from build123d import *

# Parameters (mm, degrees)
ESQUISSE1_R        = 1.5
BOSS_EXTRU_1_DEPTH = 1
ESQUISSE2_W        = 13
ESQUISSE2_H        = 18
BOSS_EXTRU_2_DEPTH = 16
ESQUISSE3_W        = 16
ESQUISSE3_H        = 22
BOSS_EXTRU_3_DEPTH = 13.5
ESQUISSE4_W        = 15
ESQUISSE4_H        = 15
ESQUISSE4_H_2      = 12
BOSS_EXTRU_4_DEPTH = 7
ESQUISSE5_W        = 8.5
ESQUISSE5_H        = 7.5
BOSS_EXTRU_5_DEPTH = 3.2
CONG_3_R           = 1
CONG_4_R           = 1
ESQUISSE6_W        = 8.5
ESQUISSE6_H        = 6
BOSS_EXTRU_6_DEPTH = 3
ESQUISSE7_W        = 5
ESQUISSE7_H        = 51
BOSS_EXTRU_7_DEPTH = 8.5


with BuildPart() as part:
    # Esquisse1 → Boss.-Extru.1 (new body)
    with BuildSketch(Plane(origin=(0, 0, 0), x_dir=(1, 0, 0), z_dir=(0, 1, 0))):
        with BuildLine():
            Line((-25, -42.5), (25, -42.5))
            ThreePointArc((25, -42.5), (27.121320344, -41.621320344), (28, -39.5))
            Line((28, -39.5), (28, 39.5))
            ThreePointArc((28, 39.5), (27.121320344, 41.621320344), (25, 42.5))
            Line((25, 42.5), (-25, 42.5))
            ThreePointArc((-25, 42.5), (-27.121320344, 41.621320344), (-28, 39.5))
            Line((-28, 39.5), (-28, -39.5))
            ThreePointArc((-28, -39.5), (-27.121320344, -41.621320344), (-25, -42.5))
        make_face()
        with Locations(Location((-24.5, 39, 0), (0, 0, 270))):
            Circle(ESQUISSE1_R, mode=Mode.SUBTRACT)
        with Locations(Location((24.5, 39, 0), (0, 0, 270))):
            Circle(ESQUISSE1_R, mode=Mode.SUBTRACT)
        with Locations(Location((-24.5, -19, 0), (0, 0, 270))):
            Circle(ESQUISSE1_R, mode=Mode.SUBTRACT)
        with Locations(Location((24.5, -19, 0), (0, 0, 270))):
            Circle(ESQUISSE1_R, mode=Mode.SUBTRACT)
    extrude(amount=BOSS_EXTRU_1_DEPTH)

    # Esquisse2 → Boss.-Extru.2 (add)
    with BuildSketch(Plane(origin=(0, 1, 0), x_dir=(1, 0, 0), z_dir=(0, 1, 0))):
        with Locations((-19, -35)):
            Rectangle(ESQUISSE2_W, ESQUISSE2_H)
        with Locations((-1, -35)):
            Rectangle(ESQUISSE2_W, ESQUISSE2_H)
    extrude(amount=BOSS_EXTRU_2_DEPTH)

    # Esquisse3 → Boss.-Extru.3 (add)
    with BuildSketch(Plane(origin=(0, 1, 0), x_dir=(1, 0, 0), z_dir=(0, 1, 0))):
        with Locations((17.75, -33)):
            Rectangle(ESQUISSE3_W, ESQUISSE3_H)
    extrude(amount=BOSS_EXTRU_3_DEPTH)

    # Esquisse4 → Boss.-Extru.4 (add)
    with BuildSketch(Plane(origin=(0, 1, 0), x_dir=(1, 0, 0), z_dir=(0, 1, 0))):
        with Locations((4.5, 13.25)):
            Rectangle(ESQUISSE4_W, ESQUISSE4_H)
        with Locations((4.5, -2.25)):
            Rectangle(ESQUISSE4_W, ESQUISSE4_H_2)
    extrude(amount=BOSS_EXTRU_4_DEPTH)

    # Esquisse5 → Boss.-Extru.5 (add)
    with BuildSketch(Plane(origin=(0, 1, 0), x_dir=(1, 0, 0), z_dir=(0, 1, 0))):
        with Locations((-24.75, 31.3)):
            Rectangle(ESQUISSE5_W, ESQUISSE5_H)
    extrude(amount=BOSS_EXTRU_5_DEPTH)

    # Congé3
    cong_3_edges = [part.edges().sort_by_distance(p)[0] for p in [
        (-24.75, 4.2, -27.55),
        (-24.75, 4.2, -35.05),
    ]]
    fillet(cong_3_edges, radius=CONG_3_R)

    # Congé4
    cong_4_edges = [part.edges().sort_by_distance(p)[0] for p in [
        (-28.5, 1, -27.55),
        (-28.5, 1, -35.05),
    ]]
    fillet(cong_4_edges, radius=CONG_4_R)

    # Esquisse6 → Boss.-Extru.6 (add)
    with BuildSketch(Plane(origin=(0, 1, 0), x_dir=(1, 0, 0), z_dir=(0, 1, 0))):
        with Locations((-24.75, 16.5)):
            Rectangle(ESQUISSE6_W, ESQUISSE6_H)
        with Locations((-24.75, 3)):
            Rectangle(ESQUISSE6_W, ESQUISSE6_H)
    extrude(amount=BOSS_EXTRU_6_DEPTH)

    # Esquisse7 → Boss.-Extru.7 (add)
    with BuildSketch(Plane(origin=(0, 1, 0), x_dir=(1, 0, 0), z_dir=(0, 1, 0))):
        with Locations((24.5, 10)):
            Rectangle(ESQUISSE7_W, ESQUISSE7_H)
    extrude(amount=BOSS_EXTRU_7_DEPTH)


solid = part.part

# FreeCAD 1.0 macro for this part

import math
import FreeCAD as App
import Part
import Sketcher

V = App.Vector
Q = App.Units.Quantity


def edges_at(feature, points):
    """Names of the edges that pass closest to the given points."""
    edges = feature.Shape.Edges
    near = lambda p: min(range(len(edges)), key=lambda i: edges[i].distToShape(Part.Vertex(*p))[0])
    return sorted({f"Edge{near(p) + 1}" for p in points})

doc = App.newDocument("Part")
body = doc.addObject("PartDesign::Body", "Body")

# Sketch on XZ plane
sketch1 = body.newObject("Sketcher::SketchObject", "Sketch")
sketch1.AttachmentSupport = (doc.getObject("XZ_Plane"), [""])
sketch1.MapMode = "FlatFace"
sketch1.addGeometry(Part.LineSegment(V(-25, 42.5, 0), V(25, 42.5, 0)), False)
sketch1.addGeometry(Part.ArcOfCircle(Part.Circle(V(25, 39.5, 0), V(0, 0, 1), 3), math.radians(0), math.radians(90)), False)
sketch1.addGeometry(Part.LineSegment(V(28, 39.5, 0), V(28, -39.5, 0)), False)
sketch1.addGeometry(Part.ArcOfCircle(Part.Circle(V(25, -39.5, 0), V(0, 0, 1), 3), math.radians(-90), math.radians(0)), False)
sketch1.addGeometry(Part.LineSegment(V(25, -42.5, 0), V(-25, -42.5, 0)), False)
sketch1.addGeometry(Part.ArcOfCircle(Part.Circle(V(-25, -39.5, 0), V(0, 0, 1), 3), math.radians(180), math.radians(270)), False)
sketch1.addGeometry(Part.LineSegment(V(-28, -39.5, 0), V(-28, 39.5, 0)), False)
sketch1.addGeometry(Part.ArcOfCircle(Part.Circle(V(-25, 39.5, 0), V(0, 0, 1), 3), math.radians(90), math.radians(180)), False)
sketch1.addGeometry(Part.Circle(V(-24.5, 19, 0), V(0, 0, 1), 1.5), False)
sketch1.addGeometry(Part.Circle(V(24.5, 19, 0), V(0, 0, 1), 1.5), False)
sketch1.addGeometry(Part.Circle(V(-24.5, -39, 0), V(0, 0, 1), 1.5), False)
sketch1.addGeometry(Part.Circle(V(24.5, -39, 0), V(0, 0, 1), 1.5), False)
sketch1.addConstraint(Sketcher.Constraint("Tangent", 0, 2, 1, 2))
sketch1.addConstraint(Sketcher.Constraint("Tangent", 1, 1, 2, 1))
sketch1.addConstraint(Sketcher.Constraint("Tangent", 2, 2, 3, 2))
sketch1.addConstraint(Sketcher.Constraint("Tangent", 3, 1, 4, 1))
sketch1.addConstraint(Sketcher.Constraint("Tangent", 4, 2, 5, 2))
sketch1.addConstraint(Sketcher.Constraint("Tangent", 5, 1, 6, 1))
sketch1.addConstraint(Sketcher.Constraint("Tangent", 6, 2, 7, 2))
sketch1.addConstraint(Sketcher.Constraint("Tangent", 7, 1, 0, 1))
sketch1.addConstraint(Sketcher.Constraint("Horizontal", 0))
sketch1.addConstraint(Sketcher.Constraint("Vertical", 2))
sketch1.addConstraint(Sketcher.Constraint("Horizontal", 4))
sketch1.addConstraint(Sketcher.Constraint("Vertical", 6))
sketch1.addConstraint(Sketcher.Constraint("Equal", 1, 3))
sketch1.addConstraint(Sketcher.Constraint("Equal", 3, 5))
sketch1.addConstraint(Sketcher.Constraint("Equal", 5, 7))
sketch1.addConstraint(Sketcher.Constraint("Equal", 8, 9))
sketch1.addConstraint(Sketcher.Constraint("Equal", 9, 10))
sketch1.addConstraint(Sketcher.Constraint("Equal", 10, 11))
sketch1.addConstraint(Sketcher.Constraint("Symmetric", 1, 3, 5, 3, -1, 1))
sketch1.addConstraint(Sketcher.Constraint("Symmetric", 8, 3, 9, 3, -2))
sketch1.addConstraint(Sketcher.Constraint("Symmetric", 10, 3, 11, 3, -2))
sketch1.addConstraint(Sketcher.Constraint("Vertical", 8, 3, 10, 3))
sketch1.addConstraint(Sketcher.Constraint("Diameter", 8, Q("3 mm")))
sketch1.addConstraint(Sketcher.Constraint("Radius", 1, Q("3 mm")))
sketch1.addConstraint(Sketcher.Constraint("DistanceX", 0, 1, 0, 2, Q("50 mm")))
sketch1.addConstraint(Sketcher.Constraint("DistanceY", 2, 2, 2, 1, Q("79 mm")))
sketch1.addConstraint(Sketcher.Constraint("DistanceY", -1, 1, 8, 3, Q("19 mm")))
sketch1.addConstraint(Sketcher.Constraint("DistanceY", 10, 3, -1, 1, Q("39 mm")))
sketch1.addConstraint(Sketcher.Constraint("DistanceX", 8, 3, 9, 3, Q("49 mm")))
pad1 = body.newObject("PartDesign::Pad", "Pad")
pad1.Profile = sketch1
pad1.Length = 1
pad1.Reversed = True

# Sketch on XZ plane
sketch2 = body.newObject("Sketcher::SketchObject", "Sketch001")
sketch2.AttachmentSupport = (doc.getObject("XZ_Plane"), [""])
sketch2.MapMode = "FlatFace"
sketch2.AttachmentOffset = App.Placement(V(0, 0, -1), App.Rotation())
sketch2.addGeometry(Part.LineSegment(V(-26, 26, 0), V(-26, 44, 0)), False)
sketch2.addGeometry(Part.LineSegment(V(-26, 44, 0), V(-12, 44, 0)), False)
sketch2.addGeometry(Part.LineSegment(V(-12, 44, 0), V(-12, 26, 0)), False)
sketch2.addGeometry(Part.LineSegment(V(-12, 26, 0), V(-26, 26, 0)), False)
sketch2.addGeometry(Part.LineSegment(V(-8, 26, 0), V(-8, 44, 0)), False)
sketch2.addGeometry(Part.LineSegment(V(-8, 44, 0), V(6, 44, 0)), False)
sketch2.addGeometry(Part.LineSegment(V(6, 44, 0), V(6, 26, 0)), False)
sketch2.addGeometry(Part.LineSegment(V(6, 26, 0), V(-8, 26, 0)), False)
sketch2.addConstraint(Sketcher.Constraint("Coincident", 0, 2, 1, 1))
sketch2.addConstraint(Sketcher.Constraint("Coincident", 1, 2, 2, 1))
sketch2.addConstraint(Sketcher.Constraint("Coincident", 2, 2, 3, 1))
sketch2.addConstraint(Sketcher.Constraint("Coincident", 3, 2, 0, 1))
sketch2.addConstraint(Sketcher.Constraint("Coincident", 4, 2, 5, 1))
sketch2.addConstraint(Sketcher.Constraint("Coincident", 5, 2, 6, 1))
sketch2.addConstraint(Sketcher.Constraint("Coincident", 6, 2, 7, 1))
sketch2.addConstraint(Sketcher.Constraint("Coincident", 7, 2, 4, 1))
sketch2.addConstraint(Sketcher.Constraint("Vertical", 0))
sketch2.addConstraint(Sketcher.Constraint("Horizontal", 1))
sketch2.addConstraint(Sketcher.Constraint("Vertical", 2))
sketch2.addConstraint(Sketcher.Constraint("Horizontal", 3))
sketch2.addConstraint(Sketcher.Constraint("Vertical", 4))
sketch2.addConstraint(Sketcher.Constraint("Horizontal", 5))
sketch2.addConstraint(Sketcher.Constraint("Vertical", 6))
sketch2.addConstraint(Sketcher.Constraint("Horizontal", 7))
sketch2.addConstraint(Sketcher.Constraint("Horizontal", 1, 2, 4, 2))
sketch2.addConstraint(Sketcher.Constraint("Horizontal", 3, 2, 6, 2))
sketch2.addConstraint(Sketcher.Constraint("Equal", 3, 5))
sketch2.addConstraint(Sketcher.Constraint("DistanceX", 1, 1, 1, 2, Q("13 mm")))
sketch2.addConstraint(Sketcher.Constraint("DistanceY", 0, 1, 0, 2, Q("18 mm")))
sketch2.addConstraint(Sketcher.Constraint("DistanceY", -1, 1, 0, 2, Q("44 mm")))
sketch2.addConstraint(Sketcher.Constraint("DistanceX", 1, 2, 4, 2, Q("5 mm")))
sketch2.addConstraint(Sketcher.Constraint("DistanceX", 0, 2, -1, 1, Q("25.5 mm")))
pad2 = body.newObject("PartDesign::Pad", "Pad001")
pad2.Profile = sketch2
pad2.Length = 16
pad2.Reversed = True

# Sketch on XZ plane
sketch3 = body.newObject("Sketcher::SketchObject", "Sketch002")
sketch3.AttachmentSupport = (doc.getObject("XZ_Plane"), [""])
sketch3.MapMode = "FlatFace"
sketch3.AttachmentOffset = App.Placement(V(0, 0, -1), App.Rotation())
sketch3.addGeometry(Part.LineSegment(V(10, 22, 0), V(10, 44, 0)), False)
sketch3.addGeometry(Part.LineSegment(V(10, 44, 0), V(26, 44, 0)), False)
sketch3.addGeometry(Part.LineSegment(V(26, 44, 0), V(26, 22, 0)), False)
sketch3.addGeometry(Part.LineSegment(V(26, 22, 0), V(10, 22, 0)), False)
sketch3.addConstraint(Sketcher.Constraint("Coincident", 0, 2, 1, 1))
sketch3.addConstraint(Sketcher.Constraint("Coincident", 1, 2, 2, 1))
sketch3.addConstraint(Sketcher.Constraint("Coincident", 2, 2, 3, 1))
sketch3.addConstraint(Sketcher.Constraint("Coincident", 3, 2, 0, 1))
sketch3.addConstraint(Sketcher.Constraint("Vertical", 0))
sketch3.addConstraint(Sketcher.Constraint("Horizontal", 1))
sketch3.addConstraint(Sketcher.Constraint("Vertical", 2))
sketch3.addConstraint(Sketcher.Constraint("Horizontal", 3))
sketch3.addConstraint(Sketcher.Constraint("DistanceX", 1, 1, 1, 2, Q("16 mm")))
sketch3.addConstraint(Sketcher.Constraint("DistanceY", 0, 1, 0, 2, Q("22 mm")))
sketch3.addConstraint(Sketcher.Constraint("DistanceY", -1, 1, 0, 2, Q("44 mm")))
sketch3.addConstraint(Sketcher.Constraint("DistanceX", -1, 1, 0, 2, Q("9.75 mm")))
pad3 = body.newObject("PartDesign::Pad", "Pad002")
pad3.Profile = sketch3
pad3.Length = 13.5
pad3.Reversed = True

# Sketch on XZ plane
sketch4 = body.newObject("Sketcher::SketchObject", "Sketch003")
sketch4.AttachmentSupport = (doc.getObject("XZ_Plane"), [""])
sketch4.MapMode = "FlatFace"
sketch4.AttachmentOffset = App.Placement(V(0, 0, -1), App.Rotation())
sketch4.addGeometry(Part.LineSegment(V(-3, -21, 0), V(-3, -6, 0)), False)
sketch4.addGeometry(Part.LineSegment(V(-3, -6, 0), V(12, -6, 0)), False)
sketch4.addGeometry(Part.LineSegment(V(12, -6, 0), V(12, -21, 0)), False)
sketch4.addGeometry(Part.LineSegment(V(12, -21, 0), V(-3, -21, 0)), False)
sketch4.addGeometry(Part.LineSegment(V(-3, -4, 0), V(-3, 8, 0)), False)
sketch4.addGeometry(Part.LineSegment(V(-3, 8, 0), V(12, 8, 0)), False)
sketch4.addGeometry(Part.LineSegment(V(12, 8, 0), V(12, -4, 0)), False)
sketch4.addGeometry(Part.LineSegment(V(12, -4, 0), V(-3, -4, 0)), False)
sketch4.addConstraint(Sketcher.Constraint("Coincident", 0, 2, 1, 1))
sketch4.addConstraint(Sketcher.Constraint("Coincident", 1, 2, 2, 1))
sketch4.addConstraint(Sketcher.Constraint("Coincident", 2, 2, 3, 1))
sketch4.addConstraint(Sketcher.Constraint("Coincident", 3, 2, 0, 1))
sketch4.addConstraint(Sketcher.Constraint("Coincident", 4, 2, 5, 1))
sketch4.addConstraint(Sketcher.Constraint("Coincident", 5, 2, 6, 1))
sketch4.addConstraint(Sketcher.Constraint("Coincident", 6, 2, 7, 1))
sketch4.addConstraint(Sketcher.Constraint("Coincident", 7, 2, 4, 1))
sketch4.addConstraint(Sketcher.Constraint("Vertical", 0))
sketch4.addConstraint(Sketcher.Constraint("Horizontal", 1))
sketch4.addConstraint(Sketcher.Constraint("Vertical", 2))
sketch4.addConstraint(Sketcher.Constraint("Horizontal", 3))
sketch4.addConstraint(Sketcher.Constraint("Vertical", 4))
sketch4.addConstraint(Sketcher.Constraint("Horizontal", 5))
sketch4.addConstraint(Sketcher.Constraint("Vertical", 6))
sketch4.addConstraint(Sketcher.Constraint("Horizontal", 7))
sketch4.addConstraint(Sketcher.Constraint("Vertical", 3, 2, 4, 2))
sketch4.addConstraint(Sketcher.Constraint("Vertical", 2, 2, 5, 2))
sketch4.addConstraint(Sketcher.Constraint("Equal", 7, 0))
sketch4.addConstraint(Sketcher.Constraint("DistanceX", 1, 1, 1, 2, Q("15 mm")))
sketch4.addConstraint(Sketcher.Constraint("DistanceY", 4, 1, 4, 2, Q("12 mm")))
sketch4.addConstraint(Sketcher.Constraint("DistanceX", 0, 2, -1, 1, Q("3 mm")))
sketch4.addConstraint(Sketcher.Constraint("DistanceY", 0, 2, 4, 2, Q("14 mm")))
sketch4.addConstraint(Sketcher.Constraint("DistanceY", 0, 2, -1, 1, Q("5.75 mm")))
pad4 = body.newObject("PartDesign::Pad", "Pad003")
pad4.Profile = sketch4
pad4.Length = 7
pad4.Reversed = True

# Sketch on XZ plane
sketch5 = body.newObject("Sketcher::SketchObject", "Sketch004")
sketch5.AttachmentSupport = (doc.getObject("XZ_Plane"), [""])
sketch5.MapMode = "FlatFace"
sketch5.AttachmentOffset = App.Placement(V(0, 0, -1), App.Rotation())
sketch5.addGeometry(Part.LineSegment(V(-29, -35, 0), V(-29, -28, 0)), False)
sketch5.addGeometry(Part.LineSegment(V(-29, -28, 0), V(-20, -28, 0)), False)
sketch5.addGeometry(Part.LineSegment(V(-20, -28, 0), V(-20, -35, 0)), False)
sketch5.addGeometry(Part.LineSegment(V(-20, -35, 0), V(-29, -35, 0)), False)
sketch5.addConstraint(Sketcher.Constraint("Coincident", 0, 2, 1, 1))
sketch5.addConstraint(Sketcher.Constraint("Coincident", 1, 2, 2, 1))
sketch5.addConstraint(Sketcher.Constraint("Coincident", 2, 2, 3, 1))
sketch5.addConstraint(Sketcher.Constraint("Coincident", 3, 2, 0, 1))
sketch5.addConstraint(Sketcher.Constraint("Vertical", 0))
sketch5.addConstraint(Sketcher.Constraint("Horizontal", 1))
sketch5.addConstraint(Sketcher.Constraint("Vertical", 2))
sketch5.addConstraint(Sketcher.Constraint("Horizontal", 3))
sketch5.addConstraint(Sketcher.Constraint("DistanceX", 1, 1, 1, 2, Q("8.5 mm")))
sketch5.addConstraint(Sketcher.Constraint("DistanceY", 0, 1, 0, 2, Q("7.5 mm")))
sketch5.addConstraint(Sketcher.Constraint("DistanceX", 0, 2, -1, 1, Q("29 mm")))
sketch5.addConstraint(Sketcher.Constraint("DistanceY", 0, 2, -1, 1, Q("27.55 mm")))
pad5 = body.newObject("PartDesign::Pad", "Pad004")
pad5.Profile = sketch5
pad5.Length = 3.2
pad5.Reversed = True
doc.recompute()

fillet = body.newObject("PartDesign::Fillet", "Fillet")
fillet.Base = (pad5, edges_at(pad5, [(-24.75, 4.2, -27.55), (-24.75, 4.2, -35.05)]))
fillet.Radius = 1
doc.recompute()

fillet2 = body.newObject("PartDesign::Fillet", "Fillet001")
fillet2.Base = (fillet, edges_at(fillet, [(-28.5, 1, -27.55), (-28.5, 1, -35.05)]))
fillet2.Radius = 1

# Sketch on XZ plane
sketch6 = body.newObject("Sketcher::SketchObject", "Sketch005")
sketch6.AttachmentSupport = (doc.getObject("XZ_Plane"), [""])
sketch6.MapMode = "FlatFace"
sketch6.AttachmentOffset = App.Placement(V(0, 0, -1), App.Rotation())
sketch6.addGeometry(Part.LineSegment(V(-29, -20, 0), V(-29, -14, 0)), False)
sketch6.addGeometry(Part.LineSegment(V(-29, -14, 0), V(-20, -14, 0)), False)
sketch6.addGeometry(Part.LineSegment(V(-20, -14, 0), V(-20, -20, 0)), False)
sketch6.addGeometry(Part.LineSegment(V(-20, -20, 0), V(-29, -20, 0)), False)
sketch6.addGeometry(Part.LineSegment(V(-29, -6, 0), V(-29, 0, 0)), False)
sketch6.addGeometry(Part.LineSegment(V(-29, 0, 0), V(-20, 0, 0)), False)
sketch6.addGeometry(Part.LineSegment(V(-20, 0, 0), V(-20, -6, 0)), False)
sketch6.addGeometry(Part.LineSegment(V(-20, -6, 0), V(-29, -6, 0)), False)
sketch6.addConstraint(Sketcher.Constraint("Coincident", 0, 2, 1, 1))
sketch6.addConstraint(Sketcher.Constraint("Coincident", 1, 2, 2, 1))
sketch6.addConstraint(Sketcher.Constraint("Coincident", 2, 2, 3, 1))
sketch6.addConstraint(Sketcher.Constraint("Coincident", 3, 2, 0, 1))
sketch6.addConstraint(Sketcher.Constraint("Coincident", 4, 2, 5, 1))
sketch6.addConstraint(Sketcher.Constraint("Coincident", 5, 2, 6, 1))
sketch6.addConstraint(Sketcher.Constraint("Coincident", 6, 2, 7, 1))
sketch6.addConstraint(Sketcher.Constraint("Coincident", 7, 2, 4, 1))
sketch6.addConstraint(Sketcher.Constraint("Vertical", 0))
sketch6.addConstraint(Sketcher.Constraint("Horizontal", 1))
sketch6.addConstraint(Sketcher.Constraint("Vertical", 2))
sketch6.addConstraint(Sketcher.Constraint("Horizontal", 3))
sketch6.addConstraint(Sketcher.Constraint("Vertical", 4))
sketch6.addConstraint(Sketcher.Constraint("Horizontal", 5))
sketch6.addConstraint(Sketcher.Constraint("Vertical", 6))
sketch6.addConstraint(Sketcher.Constraint("Horizontal", 7))
sketch6.addConstraint(Sketcher.Constraint("PointOnObject", 4, 2, -1))
sketch6.addConstraint(Sketcher.Constraint("Vertical", 3, 2, 4, 2))
sketch6.addConstraint(Sketcher.Constraint("Vertical", 2, 2, 5, 2))
sketch6.addConstraint(Sketcher.Constraint("Equal", 2, 4))
sketch6.addConstraint(Sketcher.Constraint("DistanceY", 0, 1, 0, 2, Q("6 mm")))
sketch6.addConstraint(Sketcher.Constraint("DistanceX", 1, 1, 1, 2, Q("8.5 mm")))
sketch6.addConstraint(Sketcher.Constraint("DistanceX", 0, 2, -1, 1, Q("29 mm")))
sketch6.addConstraint(Sketcher.Constraint("DistanceY", 0, 2, -1, 1, Q("13.5 mm")))
pad6 = body.newObject("PartDesign::Pad", "Pad005")
pad6.Profile = sketch6
pad6.Length = 3
pad6.Reversed = True

# Sketch on XZ plane
sketch7 = body.newObject("Sketcher::SketchObject", "Sketch006")
sketch7.AttachmentSupport = (doc.getObject("XZ_Plane"), [""])
sketch7.MapMode = "FlatFace"
sketch7.AttachmentOffset = App.Placement(V(0, 0, -1), App.Rotation())
sketch7.addGeometry(Part.LineSegment(V(22, -36, 0), V(22, 16, 0)), False)
sketch7.addGeometry(Part.LineSegment(V(22, 16, 0), V(27, 16, 0)), False)
sketch7.addGeometry(Part.LineSegment(V(27, 16, 0), V(27, -36, 0)), False)
sketch7.addGeometry(Part.LineSegment(V(27, -36, 0), V(22, -36, 0)), False)
sketch7.addConstraint(Sketcher.Constraint("Coincident", 0, 2, 1, 1))
sketch7.addConstraint(Sketcher.Constraint("Coincident", 1, 2, 2, 1))
sketch7.addConstraint(Sketcher.Constraint("Coincident", 2, 2, 3, 1))
sketch7.addConstraint(Sketcher.Constraint("Coincident", 3, 2, 0, 1))
sketch7.addConstraint(Sketcher.Constraint("Vertical", 0))
sketch7.addConstraint(Sketcher.Constraint("Horizontal", 1))
sketch7.addConstraint(Sketcher.Constraint("Vertical", 2))
sketch7.addConstraint(Sketcher.Constraint("Horizontal", 3))
sketch7.addConstraint(Sketcher.Constraint("DistanceX", 1, 1, 1, 2, Q("5 mm")))
sketch7.addConstraint(Sketcher.Constraint("DistanceY", 0, 1, 0, 2, Q("51 mm")))
sketch7.addConstraint(Sketcher.Constraint("DistanceX", -1, 1, 0, 2, Q("22 mm")))
sketch7.addConstraint(Sketcher.Constraint("DistanceY", -1, 1, 0, 2, Q("15.5 mm")))
pad7 = body.newObject("PartDesign::Pad", "Pad006")
pad7.Profile = sketch7
pad7.Length = 8.5
pad7.Reversed = True

doc.recompute()
